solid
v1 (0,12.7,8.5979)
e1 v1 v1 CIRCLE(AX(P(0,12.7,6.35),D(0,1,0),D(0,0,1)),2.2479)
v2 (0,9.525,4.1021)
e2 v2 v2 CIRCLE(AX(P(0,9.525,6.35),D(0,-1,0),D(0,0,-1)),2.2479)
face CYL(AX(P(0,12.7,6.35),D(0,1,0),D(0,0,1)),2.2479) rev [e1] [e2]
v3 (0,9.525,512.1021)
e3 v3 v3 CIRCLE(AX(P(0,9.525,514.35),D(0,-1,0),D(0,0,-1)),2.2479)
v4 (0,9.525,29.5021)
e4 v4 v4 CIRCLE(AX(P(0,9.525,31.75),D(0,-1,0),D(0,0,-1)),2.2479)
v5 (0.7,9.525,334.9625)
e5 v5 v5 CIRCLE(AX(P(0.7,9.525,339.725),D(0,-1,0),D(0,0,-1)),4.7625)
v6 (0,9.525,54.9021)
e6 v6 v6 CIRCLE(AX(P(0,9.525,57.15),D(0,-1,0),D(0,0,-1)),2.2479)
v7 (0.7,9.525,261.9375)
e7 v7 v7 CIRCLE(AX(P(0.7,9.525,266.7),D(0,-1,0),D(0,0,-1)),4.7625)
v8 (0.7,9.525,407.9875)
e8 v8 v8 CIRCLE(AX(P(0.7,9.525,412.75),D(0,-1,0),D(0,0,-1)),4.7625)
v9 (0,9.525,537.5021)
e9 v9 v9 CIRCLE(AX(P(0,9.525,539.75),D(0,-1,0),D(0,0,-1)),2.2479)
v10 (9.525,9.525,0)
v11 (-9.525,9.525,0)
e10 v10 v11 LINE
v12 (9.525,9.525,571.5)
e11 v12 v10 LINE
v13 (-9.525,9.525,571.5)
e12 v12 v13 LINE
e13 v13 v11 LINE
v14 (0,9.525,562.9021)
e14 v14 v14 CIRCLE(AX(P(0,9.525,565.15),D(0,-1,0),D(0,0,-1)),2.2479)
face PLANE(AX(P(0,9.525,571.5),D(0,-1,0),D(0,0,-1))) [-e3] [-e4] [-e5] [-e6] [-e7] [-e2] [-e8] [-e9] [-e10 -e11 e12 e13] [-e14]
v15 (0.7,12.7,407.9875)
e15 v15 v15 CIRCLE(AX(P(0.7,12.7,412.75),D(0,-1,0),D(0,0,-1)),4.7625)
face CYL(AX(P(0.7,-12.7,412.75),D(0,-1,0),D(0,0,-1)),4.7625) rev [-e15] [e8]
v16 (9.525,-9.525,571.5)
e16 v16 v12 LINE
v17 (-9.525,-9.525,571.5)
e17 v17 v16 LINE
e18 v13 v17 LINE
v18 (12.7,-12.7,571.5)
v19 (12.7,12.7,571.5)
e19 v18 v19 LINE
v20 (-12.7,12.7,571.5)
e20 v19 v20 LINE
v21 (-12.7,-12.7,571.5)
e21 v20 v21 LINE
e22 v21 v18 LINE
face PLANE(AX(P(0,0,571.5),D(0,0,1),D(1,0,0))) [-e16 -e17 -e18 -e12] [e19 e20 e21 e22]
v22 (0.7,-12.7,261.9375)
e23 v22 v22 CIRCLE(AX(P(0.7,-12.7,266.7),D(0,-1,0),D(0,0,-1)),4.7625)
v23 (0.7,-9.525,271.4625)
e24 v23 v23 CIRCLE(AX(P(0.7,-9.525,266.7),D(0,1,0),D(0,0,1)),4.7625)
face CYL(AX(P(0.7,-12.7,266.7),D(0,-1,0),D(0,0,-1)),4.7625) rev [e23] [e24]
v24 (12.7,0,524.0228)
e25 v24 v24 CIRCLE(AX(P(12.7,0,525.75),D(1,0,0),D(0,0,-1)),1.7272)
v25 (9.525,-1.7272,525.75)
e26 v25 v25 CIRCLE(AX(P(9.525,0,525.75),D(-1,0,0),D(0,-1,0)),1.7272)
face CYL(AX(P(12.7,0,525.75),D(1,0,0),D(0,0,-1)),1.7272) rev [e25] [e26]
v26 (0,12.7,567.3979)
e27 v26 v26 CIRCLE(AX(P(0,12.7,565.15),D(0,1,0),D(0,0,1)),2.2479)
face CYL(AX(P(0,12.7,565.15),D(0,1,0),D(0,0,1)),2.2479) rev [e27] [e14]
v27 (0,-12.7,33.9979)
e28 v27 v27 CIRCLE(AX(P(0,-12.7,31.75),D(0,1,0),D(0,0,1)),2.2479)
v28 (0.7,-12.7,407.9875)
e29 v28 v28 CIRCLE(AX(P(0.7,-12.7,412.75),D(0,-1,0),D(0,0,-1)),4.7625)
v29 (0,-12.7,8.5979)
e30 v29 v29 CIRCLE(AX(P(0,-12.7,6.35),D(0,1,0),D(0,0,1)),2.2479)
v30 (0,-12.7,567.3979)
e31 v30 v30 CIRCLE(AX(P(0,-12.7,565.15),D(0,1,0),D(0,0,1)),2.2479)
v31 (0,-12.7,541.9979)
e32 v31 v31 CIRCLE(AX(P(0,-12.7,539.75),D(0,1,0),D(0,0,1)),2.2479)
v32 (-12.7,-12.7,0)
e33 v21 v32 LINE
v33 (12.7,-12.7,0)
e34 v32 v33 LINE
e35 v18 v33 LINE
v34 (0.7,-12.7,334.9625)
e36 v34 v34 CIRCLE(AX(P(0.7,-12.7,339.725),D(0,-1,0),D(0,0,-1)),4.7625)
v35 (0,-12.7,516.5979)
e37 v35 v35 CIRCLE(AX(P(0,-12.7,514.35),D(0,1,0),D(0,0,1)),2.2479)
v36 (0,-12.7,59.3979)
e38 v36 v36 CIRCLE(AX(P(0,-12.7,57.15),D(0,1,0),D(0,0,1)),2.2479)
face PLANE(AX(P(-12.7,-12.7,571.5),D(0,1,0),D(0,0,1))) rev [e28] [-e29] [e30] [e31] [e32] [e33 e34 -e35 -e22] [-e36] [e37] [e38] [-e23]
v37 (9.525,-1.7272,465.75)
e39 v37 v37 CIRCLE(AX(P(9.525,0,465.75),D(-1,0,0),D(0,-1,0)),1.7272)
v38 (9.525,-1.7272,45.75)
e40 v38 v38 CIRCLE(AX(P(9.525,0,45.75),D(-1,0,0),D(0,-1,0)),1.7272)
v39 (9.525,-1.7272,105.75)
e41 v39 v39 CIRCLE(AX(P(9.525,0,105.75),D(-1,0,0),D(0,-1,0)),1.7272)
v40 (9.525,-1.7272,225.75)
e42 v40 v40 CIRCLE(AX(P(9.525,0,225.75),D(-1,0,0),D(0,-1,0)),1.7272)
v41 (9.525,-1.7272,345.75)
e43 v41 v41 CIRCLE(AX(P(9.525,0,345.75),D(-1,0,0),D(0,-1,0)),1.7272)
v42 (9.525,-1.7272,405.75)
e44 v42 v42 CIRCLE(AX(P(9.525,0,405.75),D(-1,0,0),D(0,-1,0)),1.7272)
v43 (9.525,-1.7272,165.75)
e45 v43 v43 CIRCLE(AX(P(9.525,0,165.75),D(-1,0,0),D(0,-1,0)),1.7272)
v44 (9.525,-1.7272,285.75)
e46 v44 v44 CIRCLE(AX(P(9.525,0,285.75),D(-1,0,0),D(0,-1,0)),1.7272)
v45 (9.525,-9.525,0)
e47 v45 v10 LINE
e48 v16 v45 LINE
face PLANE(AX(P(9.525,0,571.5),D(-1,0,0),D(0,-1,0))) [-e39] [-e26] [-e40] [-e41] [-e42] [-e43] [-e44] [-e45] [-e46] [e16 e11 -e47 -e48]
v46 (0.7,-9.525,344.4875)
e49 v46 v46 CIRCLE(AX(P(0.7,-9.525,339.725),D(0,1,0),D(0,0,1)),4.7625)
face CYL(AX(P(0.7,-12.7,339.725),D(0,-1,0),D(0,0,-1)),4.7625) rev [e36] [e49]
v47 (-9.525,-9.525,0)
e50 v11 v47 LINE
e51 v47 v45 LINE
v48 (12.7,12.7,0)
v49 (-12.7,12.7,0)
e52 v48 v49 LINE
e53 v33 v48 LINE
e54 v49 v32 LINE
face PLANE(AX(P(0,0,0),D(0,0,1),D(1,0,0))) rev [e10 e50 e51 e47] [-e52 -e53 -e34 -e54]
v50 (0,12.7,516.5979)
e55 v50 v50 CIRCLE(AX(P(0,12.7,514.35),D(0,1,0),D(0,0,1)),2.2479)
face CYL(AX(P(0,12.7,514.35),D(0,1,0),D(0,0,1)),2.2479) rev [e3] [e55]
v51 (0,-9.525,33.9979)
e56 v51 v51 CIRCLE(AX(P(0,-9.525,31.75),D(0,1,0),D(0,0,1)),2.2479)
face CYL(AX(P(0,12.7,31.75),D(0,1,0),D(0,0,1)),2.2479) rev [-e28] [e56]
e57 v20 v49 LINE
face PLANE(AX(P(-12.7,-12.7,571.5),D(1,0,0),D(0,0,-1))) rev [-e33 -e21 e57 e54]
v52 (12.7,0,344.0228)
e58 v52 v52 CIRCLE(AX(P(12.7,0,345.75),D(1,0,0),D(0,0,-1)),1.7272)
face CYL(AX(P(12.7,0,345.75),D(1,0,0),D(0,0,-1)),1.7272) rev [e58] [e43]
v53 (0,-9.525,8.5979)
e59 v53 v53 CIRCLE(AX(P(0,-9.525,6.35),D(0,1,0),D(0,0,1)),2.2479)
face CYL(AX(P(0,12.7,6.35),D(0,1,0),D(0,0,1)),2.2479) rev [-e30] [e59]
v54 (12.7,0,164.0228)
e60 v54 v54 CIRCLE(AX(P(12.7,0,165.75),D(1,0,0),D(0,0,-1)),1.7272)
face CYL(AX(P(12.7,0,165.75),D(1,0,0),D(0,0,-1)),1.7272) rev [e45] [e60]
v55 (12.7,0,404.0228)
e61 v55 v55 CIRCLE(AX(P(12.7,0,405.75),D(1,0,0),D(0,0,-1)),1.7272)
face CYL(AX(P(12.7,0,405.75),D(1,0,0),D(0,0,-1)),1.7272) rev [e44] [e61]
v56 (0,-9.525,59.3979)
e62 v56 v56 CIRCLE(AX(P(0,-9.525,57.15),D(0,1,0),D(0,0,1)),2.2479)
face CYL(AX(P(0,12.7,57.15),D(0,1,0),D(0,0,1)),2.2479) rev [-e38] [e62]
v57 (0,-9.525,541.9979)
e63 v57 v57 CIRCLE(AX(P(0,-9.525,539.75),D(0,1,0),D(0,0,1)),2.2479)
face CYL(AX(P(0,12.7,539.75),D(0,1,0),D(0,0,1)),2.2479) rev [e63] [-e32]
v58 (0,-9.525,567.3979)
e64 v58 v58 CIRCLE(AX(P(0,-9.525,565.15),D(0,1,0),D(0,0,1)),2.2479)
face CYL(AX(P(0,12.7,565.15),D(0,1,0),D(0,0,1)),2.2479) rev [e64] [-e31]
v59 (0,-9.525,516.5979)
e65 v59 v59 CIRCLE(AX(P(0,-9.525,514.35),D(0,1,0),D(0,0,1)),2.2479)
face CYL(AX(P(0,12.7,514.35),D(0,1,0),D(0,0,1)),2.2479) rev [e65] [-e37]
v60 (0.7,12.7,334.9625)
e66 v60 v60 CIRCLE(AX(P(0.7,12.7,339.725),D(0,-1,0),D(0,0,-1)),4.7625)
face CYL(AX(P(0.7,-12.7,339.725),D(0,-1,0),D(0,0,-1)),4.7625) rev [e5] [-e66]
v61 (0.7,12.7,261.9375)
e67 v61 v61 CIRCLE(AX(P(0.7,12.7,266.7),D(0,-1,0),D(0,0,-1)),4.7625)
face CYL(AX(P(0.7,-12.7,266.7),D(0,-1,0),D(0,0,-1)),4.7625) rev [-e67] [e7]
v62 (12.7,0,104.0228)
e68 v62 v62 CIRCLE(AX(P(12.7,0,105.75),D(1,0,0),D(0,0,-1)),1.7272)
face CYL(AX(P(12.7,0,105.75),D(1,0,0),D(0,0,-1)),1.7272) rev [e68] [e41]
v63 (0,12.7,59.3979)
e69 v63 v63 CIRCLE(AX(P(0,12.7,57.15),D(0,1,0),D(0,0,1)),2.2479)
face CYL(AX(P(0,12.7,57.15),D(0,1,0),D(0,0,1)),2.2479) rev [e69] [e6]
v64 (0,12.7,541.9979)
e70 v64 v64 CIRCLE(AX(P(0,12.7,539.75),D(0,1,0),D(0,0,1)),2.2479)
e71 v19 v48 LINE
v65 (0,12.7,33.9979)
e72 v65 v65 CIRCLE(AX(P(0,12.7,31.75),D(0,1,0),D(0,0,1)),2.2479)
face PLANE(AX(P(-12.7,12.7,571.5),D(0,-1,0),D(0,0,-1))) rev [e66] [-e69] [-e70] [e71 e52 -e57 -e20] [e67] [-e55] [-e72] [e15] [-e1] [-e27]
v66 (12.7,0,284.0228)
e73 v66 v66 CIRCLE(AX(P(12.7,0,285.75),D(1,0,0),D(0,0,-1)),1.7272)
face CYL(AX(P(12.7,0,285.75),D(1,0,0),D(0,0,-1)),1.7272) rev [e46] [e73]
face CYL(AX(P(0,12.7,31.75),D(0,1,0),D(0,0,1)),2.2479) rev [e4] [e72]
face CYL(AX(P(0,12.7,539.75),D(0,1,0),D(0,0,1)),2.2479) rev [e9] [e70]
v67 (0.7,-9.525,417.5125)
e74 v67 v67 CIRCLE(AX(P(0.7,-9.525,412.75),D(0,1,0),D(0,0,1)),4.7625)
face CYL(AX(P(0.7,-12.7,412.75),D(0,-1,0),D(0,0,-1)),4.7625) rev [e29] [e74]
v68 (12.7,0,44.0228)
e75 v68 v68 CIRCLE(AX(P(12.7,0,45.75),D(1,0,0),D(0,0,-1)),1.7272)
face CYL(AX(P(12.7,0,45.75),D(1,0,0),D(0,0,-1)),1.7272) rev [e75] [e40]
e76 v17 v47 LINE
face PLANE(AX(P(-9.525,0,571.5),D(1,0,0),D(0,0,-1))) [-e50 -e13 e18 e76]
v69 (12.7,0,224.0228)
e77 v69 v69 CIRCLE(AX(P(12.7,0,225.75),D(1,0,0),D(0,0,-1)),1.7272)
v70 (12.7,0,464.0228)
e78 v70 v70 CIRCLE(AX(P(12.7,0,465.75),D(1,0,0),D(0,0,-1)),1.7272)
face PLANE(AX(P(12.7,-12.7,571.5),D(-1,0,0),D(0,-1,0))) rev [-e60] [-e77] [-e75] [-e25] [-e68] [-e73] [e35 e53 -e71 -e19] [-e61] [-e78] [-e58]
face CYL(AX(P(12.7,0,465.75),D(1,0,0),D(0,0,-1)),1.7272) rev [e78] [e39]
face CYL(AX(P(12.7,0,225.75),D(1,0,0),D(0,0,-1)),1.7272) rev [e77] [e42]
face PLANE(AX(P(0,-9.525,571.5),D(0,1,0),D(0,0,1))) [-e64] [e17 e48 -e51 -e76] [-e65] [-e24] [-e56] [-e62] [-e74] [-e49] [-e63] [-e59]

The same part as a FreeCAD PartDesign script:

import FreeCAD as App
import Part
import Sketcher
from FreeCAD import Vector
Q = App.Units.Quantity


def add_polygon(sketch, points):
    """Adds a closed chain of lines whose ends are joined by coincident constraints."""
    first, n = sketch.GeometryCount, len(points)
    for a, b in zip(points, points[1:] + points[:1]):
        sketch.addGeometry(Part.LineSegment(App.Vector(*a, 0), App.Vector(*b, 0)), False)
    for i in range(n):
        sketch.addConstraint(Sketcher.Constraint("Coincident", first + i, 2, first + (i + 1) % n, 1))

doc = App.newDocument("Part")
body = doc.addObject("PartDesign::Body", "Body")

# Sketch on XY plane
sketch1 = doc.addObject("Sketcher::SketchObject", "Sketch")
body.addObject(sketch1)
sketch1.AttachmentSupport = (doc.XY_Plane, [""])
sketch1.MapMode = "FlatFace"
add_polygon(sketch1, [(-13, 13), (-13, -13), (13, -13), (13, 13)])  # lines 0-3
add_polygon(sketch1, [(10, -10), (-10, -10), (-10, 10), (10, 10)])  # lines 4-7
sketch1.addConstraint([
    Sketcher.Constraint("Vertical", 0),
    Sketcher.Constraint("Horizontal", 1),
    Sketcher.Constraint("Vertical", 2),
    Sketcher.Constraint("Horizontal", 3),
    Sketcher.Constraint("Horizontal", 4),
    Sketcher.Constraint("Vertical", 5),
    Sketcher.Constraint("Horizontal", 6),
    Sketcher.Constraint("Vertical", 7),
    Sketcher.Constraint("Symmetric", 0, 2, 2, 2, -1, 1),
    Sketcher.Constraint("Symmetric", 4, 2, 6, 2, -1, 1),
    Sketcher.Constraint("Equal", 3, 0),
    Sketcher.Constraint("Equal", 6, 5),
    Sketcher.Constraint("DistanceX", 1, 1, 1, 2, Q("1 in")),
    Sketcher.Constraint("DistanceX", 4, 2, 4, 1, Q("0.75 in")),
])
pad1 = doc.addObject("PartDesign::Pad", "Pad")
body.addObject(pad1)
pad1.Profile = sketch1
pad1.Length = Q("22.5 in")

# Sketch on XZ plane
sketch2 = doc.addObject("Sketcher::SketchObject", "Sketch001")
body.addObject(sketch2)
sketch2.AttachmentSupport = (doc.XZ_Plane, [""])
sketch2.MapMode = "FlatFace"
sketch2.AttachmentOffset = App.Placement(Vector(0, 0, -0.5 * 25.4), App.Rotation())
sketch2.addGeometry([
    Part.Circle(Vector(0, 565.1, 0), Vector(0, 0, 1), 2.2),  # 0
    Part.Circle(Vector(0, 6.3, 0), Vector(0, 0, 1), 2.2),  # 1
    Part.Circle(Vector(0, 31.8, 0), Vector(0, 0, 1), 2.2),  # 2
    Part.Circle(Vector(0, 57.1, 0), Vector(0, 0, 1), 2.2),  # 3
    Part.Circle(Vector(0, 539.8, 0), Vector(0, 0, 1), 2.2),  # 4
    Part.Circle(Vector(0, 514.4, 0), Vector(0, 0, 1), 2.2),  # 5
], False)
sketch2.addConstraint([
    Sketcher.Constraint("Equal", 0, 1),
    Sketcher.Constraint("Equal", 1, 2),
    Sketcher.Constraint("Equal", 2, 3),
    Sketcher.Constraint("Equal", 3, 4),
    Sketcher.Constraint("Equal", 4, 5),
    Sketcher.Constraint("PointOnObject", 0, 3, -2),
    Sketcher.Constraint("PointOnObject", 1, 3, -2),
    Sketcher.Constraint("PointOnObject", 2, 3, -2),
    Sketcher.Constraint("PointOnObject", 3, 3, -2),
    Sketcher.Constraint("PointOnObject", 4, 3, -2),
    Sketcher.Constraint("PointOnObject", 5, 3, -2),
    Sketcher.Constraint("Diameter", 0, Q("0.177 in")),
    Sketcher.Constraint("DistanceY", 1, 3, 0, 3, Q("22 in")),
    Sketcher.Constraint("DistanceY", 1, 3, 2, 3, Q("1 in")),
    Sketcher.Constraint("DistanceY", 2, 3, 3, 3, Q("1 in")),
    Sketcher.Constraint("DistanceY", 4, 3, 0, 3, Q("1 in")),
    Sketcher.Constraint("DistanceY", 5, 3, 4, 3, Q("1 in")),
    Sketcher.Constraint("DistanceY", -1, 1, 0, 3, Q("22.25 in")),
])
doc.recompute()
hole = doc.addObject("PartDesign::Hole", "Hole")
body.addObject(hole)
hole.Profile = sketch2
hole.ThreadType = "None"
hole.Diameter = Q("0.177 in")
hole.DepthType = "ThroughAll"
hole.Reversed = True

# Sketch on YZ plane
sketch3 = doc.addObject("Sketcher::SketchObject", "Sketch002")
body.addObject(sketch3)
sketch3.AttachmentSupport = (doc.YZ_Plane, [""])
sketch3.MapMode = "FlatFace"
sketch3.AttachmentOffset = App.Placement(Vector(0, 0, 0.5 * 25.4), App.Rotation())
sketch3.addGeometry([
    Part.Circle(Vector(0, -14.2, 0), Vector(0, 0, 1), 1.7),  # 0
    Part.Circle(Vector(0, 45.8, 0), Vector(0, 0, 1), 1.7),  # 1
    Part.Circle(Vector(0, 105.8, 0), Vector(0, 0, 1), 1.7),  # 2
    Part.Circle(Vector(0, 225.8, 0), Vector(0, 0, 1), 1.7),  # 3
    Part.Circle(Vector(0, 285.8, 0), Vector(0, 0, 1), 1.7),  # 4
    Part.Circle(Vector(0, 345.8, 0), Vector(0, 0, 1), 1.7),  # 5
    Part.Circle(Vector(0, 405.8, 0), Vector(0, 0, 1), 1.7),  # 6
    Part.Circle(Vector(0, 465.8, 0), Vector(0, 0, 1), 1.7),  # 7
    Part.Circle(Vector(0, 525.8, 0), Vector(0, 0, 1), 1.7),  # 8
    Part.Circle(Vector(0, 165.8, 0), Vector(0, 0, 1), 1.7),  # 9
    Part.Circle(Vector(0, -74.2, 0), Vector(0, 0, 1), 1.7),  # 10
    Part.Circle(Vector(0, 585.8, 0), Vector(0, 0, 1), 1.7),  # 11
    Part.Circle(Vector(0, 645.8, 0), Vector(0, 0, 1), 1.7),  # 12
], False)
sketch3.addConstraint([
    Sketcher.Constraint("Equal", 0, 1),
    Sketcher.Constraint("Equal", 1, 2),
    Sketcher.Constraint("Equal", 2, 3),
    Sketcher.Constraint("Equal", 3, 4),
    Sketcher.Constraint("Equal", 4, 5),
    Sketcher.Constraint("Equal", 5, 6),
    Sketcher.Constraint("Equal", 6, 7),
    Sketcher.Constraint("Equal", 7, 8),
    Sketcher.Constraint("Equal", 8, 9),
    Sketcher.Constraint("Equal", 9, 10),
    Sketcher.Constraint("Equal", 10, 11),
    Sketcher.Constraint("Equal", 11, 12),
    Sketcher.Constraint("PointOnObject", 0, 3, -2),
    Sketcher.Constraint("PointOnObject", 1, 3, -2),
    Sketcher.Constraint("PointOnObject", 2, 3, -2),
    Sketcher.Constraint("PointOnObject", 3, 3, -2),
    Sketcher.Constraint("PointOnObject", 4, 3, -2),
    Sketcher.Constraint("PointOnObject", 5, 3, -2),
    Sketcher.Constraint("PointOnObject", 6, 3, -2),
    Sketcher.Constraint("PointOnObject", 7, 3, -2),
    Sketcher.Constraint("PointOnObject", 8, 3, -2),
    Sketcher.Constraint("PointOnObject", 9, 3, -2),
    Sketcher.Constraint("PointOnObject", 10, 3, -2),
    Sketcher.Constraint("PointOnObject", 11, 3, -2),
    Sketcher.Constraint("PointOnObject", 12, 3, -2),
    Sketcher.Constraint("Diameter", 0, Q("0.136 in")),
    Sketcher.Constraint("DistanceY", -1, 1, 4, 3, Q("11.25 in")),
    Sketcher.Constraint("DistanceY", 0, 3, -1, 1, 14.25),
    Sketcher.Constraint("DistanceY", -1, 1, 1, 3, 45.75),
    Sketcher.Constraint("DistanceY", -1, 1, 2, 3, 105.75),
    Sketcher.Constraint("DistanceY", -1, 1, 3, 3, 225.75),
    Sketcher.Constraint("DistanceY", -1, 1, 5, 3, 345.75),
    Sketcher.Constraint("DistanceY", -1, 1, 6, 3, 405.75),
    Sketcher.Constraint("DistanceY", -1, 1, 7, 3, 465.75),
    Sketcher.Constraint("DistanceY", -1, 1, 8, 3, 525.75),
    Sketcher.Constraint("DistanceY", -1, 1, 9, 3, 165.75),
    Sketcher.Constraint("DistanceY", 10, 3, -1, 1, 74.25),
    Sketcher.Constraint("DistanceY", -1, 1, 11, 3, 585.75),
    Sketcher.Constraint("DistanceY", -1, 1, 12, 3, 645.75),
])
doc.recompute()
hole2 = doc.addObject("PartDesign::Hole", "Hole001")
body.addObject(hole2)
hole2.Profile = sketch3
hole2.ThreadType = "None"
hole2.Diameter = Q("0.136 in")
hole2.DepthType = "Dimension"
hole2.Depth = Q("0.4216 in")
hole2.DrillPoint = "Angled"
hole2.DrillPointAngle = 118

# Sketch on XZ plane
sketch4 = doc.addObject("Sketcher::SketchObject", "Sketch003")
body.addObject(sketch4)
sketch4.AttachmentSupport = (doc.XZ_Plane, [""])
sketch4.MapMode = "FlatFace"
sketch4.AttachmentOffset = App.Placement(Vector(0, 0, 0.5 * 25.4), App.Rotation())
sketch4.addGeometry([
    Part.Circle(Vector(-692.1, 193.2, 0), Vector(0, 0, 1), 4.8),  # 0
    Part.Circle(Vector(-692.1, 250.3, 0), Vector(0, 0, 1), 4.8),  # 1
    Part.Circle(Vector(-692.1, 321.6, 0), Vector(0, 0, 1), 4.8),  # 2
    Part.Circle(Vector(-692.1, 378.7, 0), Vector(0, 0, 1), 4.8),  # 3
    Part.Circle(Vector(0.7, 266.7, 0), Vector(0, 0, 1), 4.8),  # 4
    Part.Circle(Vector(0.7, 339.7, 0), Vector(0, 0, 1), 4.8),  # 5
    Part.Circle(Vector(0.7, 412.8, 0), Vector(0, 0, 1), 4.8),  # 6
    Part.Circle(Vector(-231.8, -95.2, 0), Vector(0, 0, 1), 4.8),  # 7
    Part.Circle(Vector(-215.9, -95.2, 0), Vector(0, 0, 1), 4.8),  # 8
    Part.Circle(Vector(-200, -95.2, 0), Vector(0, 0, 1), 4.8),  # 9
    Part.Circle(Vector(-460.4, -95.2, 0), Vector(0, 0, 1), 4.8),  # 10
    Part.Circle(Vector(-444.5, -95.2, 0), Vector(0, 0, 1), 4.8),  # 11
    Part.Circle(Vector(-428.6, -95.2, 0), Vector(0, 0, 1), 4.8),  # 12
], False)
sketch4.addConstraint([
    Sketcher.Constraint("Equal", 0, 1),
    Sketcher.Constraint("Equal", 1, 2),
    Sketcher.Constraint("Equal", 2, 3),
    Sketcher.Constraint("Equal", 3, 4),
    Sketcher.Constraint("Equal", 4, 5),
    Sketcher.Constraint("Equal", 5, 6),
    Sketcher.Constraint("Equal", 6, 7),
    Sketcher.Constraint("Equal", 7, 8),
    Sketcher.Constraint("Equal", 8, 9),
    Sketcher.Constraint("Equal", 9, 10),
    Sketcher.Constraint("Equal", 10, 11),
    Sketcher.Constraint("Equal", 11, 12),
    Sketcher.Constraint("Horizontal", 7, 3, 8, 3),
    Sketcher.Constraint("Horizontal", 8, 3, 9, 3),
    Sketcher.Constraint("Horizontal", 9, 3, 10, 3),
    Sketcher.Constraint("Horizontal", 10, 3, 11, 3),
    Sketcher.Constraint("Horizontal", 11, 3, 12, 3),
    Sketcher.Constraint("Vertical", 0, 3, 1, 3),
    Sketcher.Constraint("Vertical", 1, 3, 2, 3),
    Sketcher.Constraint("Vertical", 2, 3, 3, 3),
    Sketcher.Constraint("Vertical", 4, 3, 5, 3),
    Sketcher.Constraint("Vertical", 5, 3, 6, 3),
    Sketcher.Constraint("Diameter", 0, Q("0.375 in")),
    Sketcher.Constraint("DistanceY", 7, 3, 6, 3, Q("20 in")),
    Sketcher.Constraint("DistanceX", 10, 3, 7, 3, Q("9 in")),
    Sketcher.Constraint("DistanceX", 11, 3, 8, 3, Q("9 in")),
    Sketcher.Constraint("DistanceX", 12, 3, 9, 3, Q("9 in")),
    Sketcher.Constraint("DistanceY", -1, 1, 4, 3, Q("10.5 in")),
    Sketcher.Constraint("DistanceX", 8, 3, -1, 1, Q("8.5 in")),
    Sketcher.Constraint("DistanceX", 0, 3, -1, 1, Q("27.25 in")),
    Sketcher.Constraint("DistanceY", -1, 1, 2, 3, Q("12.66 in")),
    Sketcher.Constraint("DistanceY", -1, 1, 3, 3, Q("14.91 in")),
    Sketcher.Constraint("DistanceY", -1, 1, 6, 3, Q("16.25 in")),
    Sketcher.Constraint("DistanceY", 0, 3, 1, 3, Q("2.25 in")),
    Sketcher.Constraint("DistanceY", 1, 3, 5, 3, Q("3.52 in")),
    Sketcher.Constraint("DistanceX", 7, 3, 9, 3, Q("1.25 in")),
    Sketcher.Constraint("DistanceY", -1, 1, 0, 3, Q("7.605 in")),
    Sketcher.Constraint("DistanceX", 7, 3, -1, 1, Q("9.125 in")),
    Sketcher.Constraint("DistanceX", -1, 1, 4, 3, 0.7),
])
doc.recompute()
hole3 = doc.addObject("PartDesign::Hole", "Hole002")
body.addObject(hole3)
hole3.Profile = sketch4
hole3.ThreadType = "None"
hole3.Diameter = Q("0.375 in")
hole3.DepthType = "ThroughAll"

doc.recompute()
